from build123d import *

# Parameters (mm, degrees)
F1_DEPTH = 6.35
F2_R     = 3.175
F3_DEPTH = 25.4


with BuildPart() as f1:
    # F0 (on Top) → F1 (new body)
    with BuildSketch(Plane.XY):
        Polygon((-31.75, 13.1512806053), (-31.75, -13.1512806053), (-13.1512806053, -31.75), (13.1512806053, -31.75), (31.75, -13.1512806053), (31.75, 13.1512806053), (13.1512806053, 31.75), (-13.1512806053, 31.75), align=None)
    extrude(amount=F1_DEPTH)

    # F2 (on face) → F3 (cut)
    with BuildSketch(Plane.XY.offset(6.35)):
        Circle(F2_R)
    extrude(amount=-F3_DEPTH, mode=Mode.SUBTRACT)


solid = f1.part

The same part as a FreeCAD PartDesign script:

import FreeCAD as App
import Part
import Sketcher
from FreeCAD import Vector
Q = App.Units.Quantity

doc = App.newDocument("Part")
params = doc.addObject("Spreadsheet::Sheet", "Params")
for row, (alias, value) in enumerate([
    ("pad1_length", "0.25 in"),
    ("sketch2_diameter", "0.25 in"),
    ("pocket1_length", "1 in"),
], start=1):
    params.set(f"A{row}", alias)
    params.set(f"B{row}", "=" + value)
    params.setAlias(f"B{row}", alias)

body = doc.addObject("PartDesign::Body", "Body")

# Sketch on XY plane
sketch1 = doc.addObject("Sketcher::SketchObject", "Sketch")
body.addObject(sketch1)
sketch1.AttachmentSupport = (doc.XY_Plane, [""])
sketch1.MapMode = "FlatFace"
sketch1.addGeometry([
    Part.LineSegment(Vector(-31.75, 13.151281, 0), Vector(-31.75, -13.151281, 0)),  # 0
    Part.LineSegment(Vector(-31.75, -13.151281, 0), Vector(-13.151281, -31.75, 0)),  # 1
    Part.LineSegment(Vector(-13.151281, -31.75, 0), Vector(13.151281, -31.75, 0)),  # 2
    Part.LineSegment(Vector(13.151281, -31.75, 0), Vector(31.75, -13.151281, 0)),  # 3
    Part.LineSegment(Vector(31.75, -13.151281, 0), Vector(31.75, 13.151281, 0)),  # 4
    Part.LineSegment(Vector(31.75, 13.151281, 0), Vector(13.151281, 31.75, 0)),  # 5
    Part.LineSegment(Vector(13.151281, 31.75, 0), Vector(-13.151281, 31.75, 0)),  # 6
    Part.LineSegment(Vector(-13.151281, 31.75, 0), Vector(-31.75, 13.151281, 0)),  # 7
], False)
sketch1.addConstraint([
    Sketcher.Constraint("Coincident", 0, 2, 1, 1),
    Sketcher.Constraint("Coincident", 1, 2, 2, 1),
    Sketcher.Constraint("Coincident", 2, 2, 3, 1),
    Sketcher.Constraint("Coincident", 3, 2, 4, 1),
    Sketcher.Constraint("Coincident", 4, 2, 5, 1),
    Sketcher.Constraint("Coincident", 5, 2, 6, 1),
    Sketcher.Constraint("Coincident", 6, 2, 7, 1),
    Sketcher.Constraint("Coincident", 7, 2, 0, 1),
    Sketcher.Constraint("Vertical", 0),
    Sketcher.Constraint("Horizontal", 2),
    Sketcher.Constraint("Vertical", 4),
    Sketcher.Constraint("Horizontal", 6),
    Sketcher.Constraint("Symmetric", 0, 2, 4, 2, -1, 1),
    Sketcher.Constraint("Symmetric", 1, 2, 5, 2, -1, 1),
    Sketcher.Constraint("Perpendicular", 1, 3),
    Sketcher.Constraint("Perpendicular", 5, 7),
    Sketcher.Constraint("Horizontal", 0, 2, 3, 2),
    Sketcher.Constraint("Horizontal", 4, 2, 7, 2),
    Sketcher.Constraint("Vertical", 2, 2, 5, 2),
    Sketcher.Constraint("Equal", 6, 0),
    Sketcher.Constraint("DistanceX", 0, 2, 3, 2, Q("2.5 in")),
    Sketcher.Constraint("DistanceX", 2, 1, 2, 2, 26.302561),
])
pad1 = doc.addObject("PartDesign::Pad", "Pad")
body.addObject(pad1)
pad1.Profile = sketch1
pad1.setExpression("Length", "Params.pad1_length")

# Sketch on XY plane
sketch2 = doc.addObject("Sketcher::SketchObject", "Sketch001")
body.addObject(sketch2)
sketch2.AttachmentSupport = (doc.XY_Plane, [""])
sketch2.MapMode = "FlatFace"
sketch2.AttachmentOffset = App.Placement(Vector(0, 0, 0.25 * 25.4), App.Rotation())
sketch2.addGeometry(Part.Circle(Vector(0, 0, 0), Vector(0, 0, 1), 3.175), False)
sketch2.addConstraint([
    Sketcher.Constraint("Coincident", 0, 3, -1, 1),
    Sketcher.Constraint("Diameter", 0, Q("0.25 in")),
])
sketch2.setExpression("Constraints[1]", "Params.sketch2_diameter")
pocket1 = doc.addObject("PartDesign::Pocket", "Pocket")
body.addObject(pocket1)
pocket1.Profile = sketch2
pocket1.setExpression("Length", "Params.pocket1_length")

doc.recompute()
